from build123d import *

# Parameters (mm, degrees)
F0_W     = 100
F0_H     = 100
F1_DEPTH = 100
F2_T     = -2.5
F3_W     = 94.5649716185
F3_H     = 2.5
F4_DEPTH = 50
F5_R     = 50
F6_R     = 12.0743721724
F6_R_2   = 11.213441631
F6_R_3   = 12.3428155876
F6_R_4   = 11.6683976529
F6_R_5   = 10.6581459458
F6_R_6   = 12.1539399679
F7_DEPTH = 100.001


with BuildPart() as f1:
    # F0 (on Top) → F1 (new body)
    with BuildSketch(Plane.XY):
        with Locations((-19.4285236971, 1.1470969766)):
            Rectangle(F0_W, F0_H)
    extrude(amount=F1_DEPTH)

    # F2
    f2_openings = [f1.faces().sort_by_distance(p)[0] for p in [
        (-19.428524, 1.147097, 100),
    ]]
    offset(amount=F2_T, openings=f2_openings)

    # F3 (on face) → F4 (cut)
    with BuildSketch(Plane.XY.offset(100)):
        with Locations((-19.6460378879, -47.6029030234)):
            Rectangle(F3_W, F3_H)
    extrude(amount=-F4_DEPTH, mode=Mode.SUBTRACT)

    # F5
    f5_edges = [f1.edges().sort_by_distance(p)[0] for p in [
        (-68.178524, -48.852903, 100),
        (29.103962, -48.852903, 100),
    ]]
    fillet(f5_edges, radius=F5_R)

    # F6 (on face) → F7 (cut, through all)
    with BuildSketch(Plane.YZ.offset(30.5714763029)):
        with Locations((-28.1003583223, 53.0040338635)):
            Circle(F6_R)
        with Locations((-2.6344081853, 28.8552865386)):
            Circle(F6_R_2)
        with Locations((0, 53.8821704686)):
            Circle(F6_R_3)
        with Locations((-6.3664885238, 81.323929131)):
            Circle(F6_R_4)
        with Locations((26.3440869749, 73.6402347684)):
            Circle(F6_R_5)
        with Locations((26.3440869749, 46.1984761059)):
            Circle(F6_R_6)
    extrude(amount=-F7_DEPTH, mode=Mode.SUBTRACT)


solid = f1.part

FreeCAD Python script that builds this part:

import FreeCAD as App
import Part
import Sketcher
from FreeCAD import Vector
Q = App.Units.Quantity


def edges_at(feature, points):
    """Names of the edges that pass closest to the given points."""
    edges = feature.Shape.Edges
    near = lambda p: min(range(len(edges)), key=lambda i: edges[i].distToShape(Part.Vertex(*p))[0])
    return sorted({f"Edge{near(p) + 1}" for p in points})


def faces_at(feature, points):
    """Names of the faces that lie closest to the given points."""
    faces = feature.Shape.Faces
    near = lambda p: min(range(len(faces)), key=lambda i: faces[i].distToShape(Part.Vertex(*p))[0])
    return sorted({f"Face{near(p) + 1}" for p in points})


def add_polygon(sketch, points):
    """Adds a closed chain of lines whose ends are joined by coincident constraints."""
    first, n = sketch.GeometryCount, len(points)
    for a, b in zip(points, points[1:] + points[:1]):
        sketch.addGeometry(Part.LineSegment(App.Vector(*a, 0), App.Vector(*b, 0)), False)
    for i in range(n):
        sketch.addConstraint(Sketcher.Constraint("Coincident", first + i, 2, first + (i + 1) % n, 1))

doc = App.newDocument("Part")
params = doc.addObject("Spreadsheet::Sheet", "Params")
for row, (alias, value) in enumerate([
    ("sketch1_width", "100 mm"),
    ("pad1_length", "100 mm"),
    ("thickness_wall", "2.5 mm"),
    ("sketch2_height", "2.5 mm"),
    ("pocket1_length", "50 mm"),
    ("fillet_radius", "50 mm"),
], start=1):
    params.set(f"A{row}", alias)
    params.set(f"B{row}", "=" + value)
    params.setAlias(f"B{row}", alias)

body = doc.addObject("PartDesign::Body", "Body")

# Sketch on XY plane
sketch1 = body.newObject("Sketcher::SketchObject", "Sketch")
sketch1.AttachmentSupport = (doc.getObject("XY_Plane"), [""])
sketch1.MapMode = "FlatFace"
add_polygon(sketch1, [(-69, 51), (-69, -49), (31, -49), (31, 51)])  # lines 0-3
sketch1.addConstraint([
    Sketcher.Constraint("Vertical", 0),
    Sketcher.Constraint("Horizontal", 1),
    Sketcher.Constraint("Vertical", 2),
    Sketcher.Constraint("Horizontal", 3),
    Sketcher.Constraint("Equal", 3, 0),
    Sketcher.Constraint("DistanceX", 1, 1, 1, 2, Q("100 mm")),
    Sketcher.Constraint("DistanceX", 0, 2, -1, 1, Q("69.428524 mm")),
    Sketcher.Constraint("DistanceY", 0, 2, -1, 1, Q("48.852903 mm")),
])
sketch1.setExpression("Constraints[9]", "Params.sketch1_width")
pad1 = body.newObject("PartDesign::Pad", "Pad")
pad1.Profile = sketch1
pad1.setExpression("Length", "Params.pad1_length")
doc.recompute()

thickness = body.newObject("PartDesign::Thickness", "Thickness")
thickness.Base = (pad1, faces_at(pad1, [(-19.429, 1.147, 100)]))
thickness.setExpression("Value", "Params.thickness_wall")
thickness.Reversed = True
thickness.Join = "Arc"

# Sketch on XY plane
sketch2 = body.newObject("Sketcher::SketchObject", "Sketch001")
sketch2.AttachmentSupport = (doc.getObject("XY_Plane"), [""])
sketch2.MapMode = "FlatFace"
sketch2.AttachmentOffset = App.Placement(Vector(0, 0, 100), App.Rotation())
add_polygon(sketch2, [(-66.9, -46.4), (-66.9, -48.9), (27.6, -48.9), (27.6, -46.4)])  # lines 0-3
sketch2.addConstraint([
    Sketcher.Constraint("Vertical", 0),
    Sketcher.Constraint("Horizontal", 1),
    Sketcher.Constraint("Vertical", 2),
    Sketcher.Constraint("Horizontal", 3),
    Sketcher.Constraint("DistanceY", 0, 2, 0, 1, Q("2.5 mm")),
    Sketcher.Constraint("DistanceX", 1, 1, 1, 2, Q("94.564972 mm")),
    Sketcher.Constraint("DistanceX", 0, 2, -1, 1, Q("66.928524 mm")),
    Sketcher.Constraint("DistanceY", 0, 2, -1, 1, Q("48.852903 mm")),
])
sketch2.setExpression("Constraints[8]", "Params.sketch2_height")
pocket1 = body.newObject("PartDesign::Pocket", "Pocket")
pocket1.Profile = sketch2
pocket1.setExpression("Length", "Params.pocket1_length")
doc.recompute()

fillet = body.newObject("PartDesign::Fillet", "Fillet")
fillet.Base = (pocket1, edges_at(pocket1, [(-68.179, -48.853, 100), (29.104, -48.853, 100)]))
fillet.setExpression("Radius", "Params.fillet_radius")

# Sketch on YZ plane
sketch3 = body.newObject("Sketcher::SketchObject", "Sketch002")
sketch3.AttachmentSupport = (doc.getObject("YZ_Plane"), [""])
sketch3.MapMode = "FlatFace"
sketch3.AttachmentOffset = App.Placement(Vector(0, 0, 30.571476), App.Rotation())
sketch3.addGeometry([
    Part.Circle(Vector(-28, 53, 0), Vector(0, 0, 1), 12),  # 0
    Part.Circle(Vector(-3, 29, 0), Vector(0, 0, 1), 11),  # 1
    Part.Circle(Vector(0, 54, 0), Vector(0, 0, 1), 12),  # 2
    Part.Circle(Vector(-6, 81, 0), Vector(0, 0, 1), 12),  # 3
    Part.Circle(Vector(26, 74, 0), Vector(0, 0, 1), 11),  # 4
    Part.Circle(Vector(26, 46, 0), Vector(0, 0, 1), 12),  # 5
], False)
sketch3.addConstraint([
    Sketcher.Constraint("PointOnObject", 2, 3, -2),
    Sketcher.Constraint("Vertical", 4, 3, 5, 3),
    Sketcher.Constraint("Diameter", 2, Q("24.685631 mm")),
    Sketcher.Constraint("Diameter", 4, Q("21.316292 mm")),
    Sketcher.Constraint("Diameter", 5, Q("24.30788 mm")),
    Sketcher.Constraint("Diameter", 0, Q("24.148744 mm")),
    Sketcher.Constraint("Diameter", 1, Q("22.426883 mm")),
    Sketcher.Constraint("Diameter", 3, Q("23.336795 mm")),
    Sketcher.Constraint("DistanceY", 0, 3, 4, 3, Q("20.636201 mm")),
    Sketcher.Constraint("DistanceX", 0, 3, -1, 1, Q("28.100358 mm")),
    Sketcher.Constraint("DistanceX", 1, 3, -1, 1, Q("2.634408 mm")),
    Sketcher.Constraint("DistanceY", -1, 1, 2, 3, Q("53.88217 mm")),
    Sketcher.Constraint("DistanceX", 3, 3, -1, 1, Q("6.366489 mm")),
    Sketcher.Constraint("DistanceY", -1, 1, 3, 3, Q("81.323929 mm")),
    Sketcher.Constraint("DistanceY", 1, 3, 4, 3, Q("44.784948 mm")),
    Sketcher.Constraint("DistanceY", 5, 3, 4, 3, Q("27.441759 mm")),
    Sketcher.Constraint("DistanceY", -1, 1, 0, 3, Q("53.004034 mm")),
    Sketcher.Constraint("DistanceX", -1, 1, 4, 3, Q("26.344087 mm")),
])
pocket2 = body.newObject("PartDesign::Pocket", "Pocket001")
pocket2.Profile = sketch3
pocket2.Type = "ThroughAll"

doc.recompute()
